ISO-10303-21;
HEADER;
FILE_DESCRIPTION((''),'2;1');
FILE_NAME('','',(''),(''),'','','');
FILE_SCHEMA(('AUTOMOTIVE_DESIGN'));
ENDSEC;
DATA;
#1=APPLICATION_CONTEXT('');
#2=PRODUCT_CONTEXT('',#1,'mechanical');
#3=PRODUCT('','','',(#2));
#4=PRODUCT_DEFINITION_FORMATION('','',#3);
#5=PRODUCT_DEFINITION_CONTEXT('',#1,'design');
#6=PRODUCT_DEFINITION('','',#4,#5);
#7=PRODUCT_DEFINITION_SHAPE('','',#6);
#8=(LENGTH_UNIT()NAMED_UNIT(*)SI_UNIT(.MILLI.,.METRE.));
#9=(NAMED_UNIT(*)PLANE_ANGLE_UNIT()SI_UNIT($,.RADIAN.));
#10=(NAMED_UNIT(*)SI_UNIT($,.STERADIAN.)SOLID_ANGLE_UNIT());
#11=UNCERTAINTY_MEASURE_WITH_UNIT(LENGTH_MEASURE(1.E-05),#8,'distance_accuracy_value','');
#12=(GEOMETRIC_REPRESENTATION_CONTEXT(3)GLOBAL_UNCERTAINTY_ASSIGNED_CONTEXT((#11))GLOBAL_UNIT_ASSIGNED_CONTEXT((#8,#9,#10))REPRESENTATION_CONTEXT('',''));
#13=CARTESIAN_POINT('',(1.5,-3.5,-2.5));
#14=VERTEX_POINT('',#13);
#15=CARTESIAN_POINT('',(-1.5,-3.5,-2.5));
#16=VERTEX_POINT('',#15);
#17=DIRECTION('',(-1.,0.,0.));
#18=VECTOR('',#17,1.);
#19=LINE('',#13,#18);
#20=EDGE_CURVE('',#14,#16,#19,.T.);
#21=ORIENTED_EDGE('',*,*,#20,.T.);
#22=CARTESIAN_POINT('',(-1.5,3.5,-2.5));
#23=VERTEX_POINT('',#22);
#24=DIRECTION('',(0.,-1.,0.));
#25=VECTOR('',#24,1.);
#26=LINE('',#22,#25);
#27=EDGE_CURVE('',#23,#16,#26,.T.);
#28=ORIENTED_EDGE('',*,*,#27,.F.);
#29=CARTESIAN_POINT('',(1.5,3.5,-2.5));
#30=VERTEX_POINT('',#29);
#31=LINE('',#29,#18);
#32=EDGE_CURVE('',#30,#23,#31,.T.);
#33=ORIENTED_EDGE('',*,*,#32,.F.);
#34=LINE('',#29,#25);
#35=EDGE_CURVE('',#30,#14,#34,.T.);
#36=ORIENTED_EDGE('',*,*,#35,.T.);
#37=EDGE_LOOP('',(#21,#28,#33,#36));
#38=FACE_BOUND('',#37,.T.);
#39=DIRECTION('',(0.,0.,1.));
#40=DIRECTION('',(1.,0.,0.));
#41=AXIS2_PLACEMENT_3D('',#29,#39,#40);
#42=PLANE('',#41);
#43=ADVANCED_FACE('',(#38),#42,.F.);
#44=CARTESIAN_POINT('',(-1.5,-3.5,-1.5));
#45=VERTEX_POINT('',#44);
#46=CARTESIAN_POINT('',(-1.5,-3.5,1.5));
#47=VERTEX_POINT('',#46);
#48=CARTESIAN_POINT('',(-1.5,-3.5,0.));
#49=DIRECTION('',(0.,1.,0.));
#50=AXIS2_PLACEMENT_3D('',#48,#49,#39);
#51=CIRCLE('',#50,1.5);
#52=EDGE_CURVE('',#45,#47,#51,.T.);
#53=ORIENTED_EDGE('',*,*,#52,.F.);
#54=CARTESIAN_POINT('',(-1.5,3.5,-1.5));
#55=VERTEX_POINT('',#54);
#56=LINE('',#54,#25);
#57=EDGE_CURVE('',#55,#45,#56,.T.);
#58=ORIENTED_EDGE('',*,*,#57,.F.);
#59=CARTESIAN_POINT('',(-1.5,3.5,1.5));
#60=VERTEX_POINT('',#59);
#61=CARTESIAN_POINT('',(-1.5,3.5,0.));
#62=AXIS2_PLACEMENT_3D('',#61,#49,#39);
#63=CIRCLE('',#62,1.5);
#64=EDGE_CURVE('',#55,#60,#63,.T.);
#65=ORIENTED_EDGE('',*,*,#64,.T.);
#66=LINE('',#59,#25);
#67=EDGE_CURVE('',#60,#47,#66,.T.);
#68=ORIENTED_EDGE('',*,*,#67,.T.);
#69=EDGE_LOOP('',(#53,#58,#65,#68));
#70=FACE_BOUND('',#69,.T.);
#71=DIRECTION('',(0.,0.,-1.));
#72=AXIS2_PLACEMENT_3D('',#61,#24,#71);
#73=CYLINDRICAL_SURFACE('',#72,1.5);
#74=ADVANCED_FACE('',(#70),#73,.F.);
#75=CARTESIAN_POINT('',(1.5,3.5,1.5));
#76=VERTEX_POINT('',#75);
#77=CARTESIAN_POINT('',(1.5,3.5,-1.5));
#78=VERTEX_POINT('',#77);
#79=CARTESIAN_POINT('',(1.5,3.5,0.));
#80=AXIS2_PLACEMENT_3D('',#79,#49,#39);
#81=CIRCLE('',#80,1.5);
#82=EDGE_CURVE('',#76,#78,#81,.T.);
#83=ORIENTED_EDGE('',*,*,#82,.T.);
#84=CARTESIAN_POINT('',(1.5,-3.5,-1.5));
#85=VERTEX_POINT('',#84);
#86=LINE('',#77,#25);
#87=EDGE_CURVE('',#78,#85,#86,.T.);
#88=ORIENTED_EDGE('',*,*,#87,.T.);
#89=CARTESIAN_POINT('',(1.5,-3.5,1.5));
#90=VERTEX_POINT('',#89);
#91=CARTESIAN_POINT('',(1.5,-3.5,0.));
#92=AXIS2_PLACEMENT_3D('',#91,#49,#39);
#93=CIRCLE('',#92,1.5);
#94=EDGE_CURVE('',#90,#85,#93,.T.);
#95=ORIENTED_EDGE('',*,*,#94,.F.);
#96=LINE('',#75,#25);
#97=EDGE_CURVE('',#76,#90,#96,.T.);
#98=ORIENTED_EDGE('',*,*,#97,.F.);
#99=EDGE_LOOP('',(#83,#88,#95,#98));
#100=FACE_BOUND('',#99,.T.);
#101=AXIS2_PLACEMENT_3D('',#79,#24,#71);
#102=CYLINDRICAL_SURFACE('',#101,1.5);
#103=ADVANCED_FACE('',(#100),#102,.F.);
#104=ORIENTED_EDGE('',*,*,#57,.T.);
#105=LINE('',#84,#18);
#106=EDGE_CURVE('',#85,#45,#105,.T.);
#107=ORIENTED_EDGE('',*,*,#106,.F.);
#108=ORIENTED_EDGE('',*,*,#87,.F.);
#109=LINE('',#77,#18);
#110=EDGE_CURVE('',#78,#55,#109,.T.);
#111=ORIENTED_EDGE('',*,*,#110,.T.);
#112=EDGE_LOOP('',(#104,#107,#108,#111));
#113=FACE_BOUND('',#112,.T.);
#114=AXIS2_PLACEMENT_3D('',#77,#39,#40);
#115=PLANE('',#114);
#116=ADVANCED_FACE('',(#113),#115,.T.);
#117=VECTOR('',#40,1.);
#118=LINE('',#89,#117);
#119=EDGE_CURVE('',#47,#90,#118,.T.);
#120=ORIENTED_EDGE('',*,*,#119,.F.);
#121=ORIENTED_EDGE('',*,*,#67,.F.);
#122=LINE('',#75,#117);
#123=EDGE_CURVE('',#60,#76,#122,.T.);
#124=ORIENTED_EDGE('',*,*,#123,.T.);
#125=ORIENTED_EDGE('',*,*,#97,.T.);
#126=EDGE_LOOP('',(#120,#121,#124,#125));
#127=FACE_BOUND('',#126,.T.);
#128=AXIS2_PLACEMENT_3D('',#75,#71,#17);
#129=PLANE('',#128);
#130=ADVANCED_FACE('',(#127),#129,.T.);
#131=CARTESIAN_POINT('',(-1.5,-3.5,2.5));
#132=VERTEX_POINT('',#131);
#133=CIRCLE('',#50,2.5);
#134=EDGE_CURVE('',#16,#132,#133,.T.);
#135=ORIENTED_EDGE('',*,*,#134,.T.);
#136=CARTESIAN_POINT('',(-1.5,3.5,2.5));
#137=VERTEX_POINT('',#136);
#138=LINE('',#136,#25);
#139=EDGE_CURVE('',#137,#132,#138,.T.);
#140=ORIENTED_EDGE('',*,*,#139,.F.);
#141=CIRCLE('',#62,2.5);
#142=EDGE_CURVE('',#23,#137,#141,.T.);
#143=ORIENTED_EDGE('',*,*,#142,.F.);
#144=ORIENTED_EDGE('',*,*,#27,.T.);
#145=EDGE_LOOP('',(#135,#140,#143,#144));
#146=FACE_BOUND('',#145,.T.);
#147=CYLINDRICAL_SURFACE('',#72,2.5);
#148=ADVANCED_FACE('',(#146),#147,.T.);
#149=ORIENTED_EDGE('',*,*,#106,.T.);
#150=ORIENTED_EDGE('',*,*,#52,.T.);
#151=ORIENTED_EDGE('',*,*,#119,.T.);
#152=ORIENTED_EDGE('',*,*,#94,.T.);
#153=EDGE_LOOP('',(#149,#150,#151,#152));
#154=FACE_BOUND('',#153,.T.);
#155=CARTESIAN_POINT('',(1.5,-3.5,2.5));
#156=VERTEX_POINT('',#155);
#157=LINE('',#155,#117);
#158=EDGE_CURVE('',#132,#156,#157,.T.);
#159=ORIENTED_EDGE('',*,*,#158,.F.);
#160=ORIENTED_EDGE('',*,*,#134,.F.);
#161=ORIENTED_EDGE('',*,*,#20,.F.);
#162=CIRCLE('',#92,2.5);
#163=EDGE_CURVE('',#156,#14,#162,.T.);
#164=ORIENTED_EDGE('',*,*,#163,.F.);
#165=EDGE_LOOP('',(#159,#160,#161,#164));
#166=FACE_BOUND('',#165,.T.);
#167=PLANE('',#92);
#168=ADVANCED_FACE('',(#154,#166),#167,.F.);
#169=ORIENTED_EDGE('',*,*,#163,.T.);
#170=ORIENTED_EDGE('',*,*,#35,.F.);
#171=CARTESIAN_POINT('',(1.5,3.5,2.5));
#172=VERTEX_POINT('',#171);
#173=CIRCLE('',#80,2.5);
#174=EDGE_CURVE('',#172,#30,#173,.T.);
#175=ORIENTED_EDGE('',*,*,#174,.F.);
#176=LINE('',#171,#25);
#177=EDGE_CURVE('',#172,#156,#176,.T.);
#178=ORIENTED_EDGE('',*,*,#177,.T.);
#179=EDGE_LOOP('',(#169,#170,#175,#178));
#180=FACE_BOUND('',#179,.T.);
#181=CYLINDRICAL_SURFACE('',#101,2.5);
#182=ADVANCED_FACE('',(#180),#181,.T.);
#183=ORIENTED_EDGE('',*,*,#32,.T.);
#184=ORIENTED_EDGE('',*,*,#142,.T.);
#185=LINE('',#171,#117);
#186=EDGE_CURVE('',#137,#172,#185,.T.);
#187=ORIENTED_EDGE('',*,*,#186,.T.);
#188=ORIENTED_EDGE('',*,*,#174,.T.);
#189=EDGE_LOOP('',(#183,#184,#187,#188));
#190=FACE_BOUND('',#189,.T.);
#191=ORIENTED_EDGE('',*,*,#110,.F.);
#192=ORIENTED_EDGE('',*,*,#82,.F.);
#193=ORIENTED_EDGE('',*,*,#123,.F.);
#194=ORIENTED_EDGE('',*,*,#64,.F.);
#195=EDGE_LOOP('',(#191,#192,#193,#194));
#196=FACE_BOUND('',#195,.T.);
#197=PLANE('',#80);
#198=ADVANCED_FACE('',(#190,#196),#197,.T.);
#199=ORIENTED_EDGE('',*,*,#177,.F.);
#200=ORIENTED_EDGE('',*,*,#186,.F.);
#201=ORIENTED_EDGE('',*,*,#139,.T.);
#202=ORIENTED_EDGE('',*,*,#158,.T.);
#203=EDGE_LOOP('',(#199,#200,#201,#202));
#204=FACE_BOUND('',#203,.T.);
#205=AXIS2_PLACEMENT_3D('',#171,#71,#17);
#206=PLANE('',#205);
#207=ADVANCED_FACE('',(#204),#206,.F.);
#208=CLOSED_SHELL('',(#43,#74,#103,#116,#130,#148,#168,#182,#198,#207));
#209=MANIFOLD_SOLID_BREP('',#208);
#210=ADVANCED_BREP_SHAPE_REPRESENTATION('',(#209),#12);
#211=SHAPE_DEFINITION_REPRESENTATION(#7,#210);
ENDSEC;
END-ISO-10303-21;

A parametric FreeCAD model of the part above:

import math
import FreeCAD as App
import Part
import Sketcher
from FreeCAD import Vector

doc = App.newDocument("Part")
body = doc.addObject("PartDesign::Body", "Body")

sketch1 = body.newObject("Sketcher::SketchObject", "Sketch")
sketch1.AttachmentSupport = (doc.getObject("XZ_Plane"), [""])
sketch1.MapMode = "FlatFace"
sketch1.addGeometry([
    Part.LineSegment(Vector(-1.5, 2.5, 0), Vector(1.5, 2.5, 0)),
    Part.ArcOfCircle(Part.Circle(Vector(1.5, 0, 0), Vector(0, 0, 1), 2.5), math.radians(-90), math.radians(90)),
    Part.LineSegment(Vector(1.5, -2.5, 0), Vector(-1.5, -2.5, 0)),
    Part.ArcOfCircle(Part.Circle(Vector(-1.5, 0, 0), Vector(0, 0, 1), 2.5), math.radians(90), math.radians(270)),
    Part.LineSegment(Vector(1.5, 1.5, 0), Vector(-1.5, 1.5, 0)),
    Part.ArcOfCircle(Part.Circle(Vector(-1.5, 0, 0), Vector(0, 0, 1), 1.5), math.radians(90), math.radians(270)),
    Part.LineSegment(Vector(-1.5, -1.5, 0), Vector(1.5, -1.5, 0)),
    Part.ArcOfCircle(Part.Circle(Vector(1.5, 0, 0), Vector(0, 0, 1), 1.5), math.radians(-90), math.radians(90)),
], False)
sketch1.addConstraint([
    Sketcher.Constraint("Tangent", 0, 2, 1, 2),
    Sketcher.Constraint("Tangent", 1, 1, 2, 1),
    Sketcher.Constraint("Tangent", 2, 2, 3, 2),
    Sketcher.Constraint("Tangent", 3, 1, 0, 1),
    Sketcher.Constraint("Tangent", 4, 2, 5, 1),
    Sketcher.Constraint("Tangent", 5, 2, 6, 1),
    Sketcher.Constraint("Tangent", 6, 2, 7, 1),
    Sketcher.Constraint("Tangent", 7, 2, 4, 1),
    Sketcher.Constraint("Horizontal", 0),
    Sketcher.Constraint("Horizontal", 2),
    Sketcher.Constraint("Horizontal", 4),
    Sketcher.Constraint("Horizontal", 6),
    Sketcher.Constraint("Coincident", 5, 3, 3, 3),
    Sketcher.Constraint("Symmetric", 1, 3, 3, 3, -1, 1),
    Sketcher.Constraint("Vertical", 7, 3, 0, 2),
    Sketcher.Constraint("Radius", 1, 2.5),
    Sketcher.Constraint("Radius", 5, 1.5),
    Sketcher.Constraint("DistanceX", 0, 1, 0, 2, 3.0),
])
pad1 = body.newObject("PartDesign::Pad", "Pad")
pad1.Profile = sketch1
pad1.Length = 7
pad1.Midplane = True

doc.recompute()
